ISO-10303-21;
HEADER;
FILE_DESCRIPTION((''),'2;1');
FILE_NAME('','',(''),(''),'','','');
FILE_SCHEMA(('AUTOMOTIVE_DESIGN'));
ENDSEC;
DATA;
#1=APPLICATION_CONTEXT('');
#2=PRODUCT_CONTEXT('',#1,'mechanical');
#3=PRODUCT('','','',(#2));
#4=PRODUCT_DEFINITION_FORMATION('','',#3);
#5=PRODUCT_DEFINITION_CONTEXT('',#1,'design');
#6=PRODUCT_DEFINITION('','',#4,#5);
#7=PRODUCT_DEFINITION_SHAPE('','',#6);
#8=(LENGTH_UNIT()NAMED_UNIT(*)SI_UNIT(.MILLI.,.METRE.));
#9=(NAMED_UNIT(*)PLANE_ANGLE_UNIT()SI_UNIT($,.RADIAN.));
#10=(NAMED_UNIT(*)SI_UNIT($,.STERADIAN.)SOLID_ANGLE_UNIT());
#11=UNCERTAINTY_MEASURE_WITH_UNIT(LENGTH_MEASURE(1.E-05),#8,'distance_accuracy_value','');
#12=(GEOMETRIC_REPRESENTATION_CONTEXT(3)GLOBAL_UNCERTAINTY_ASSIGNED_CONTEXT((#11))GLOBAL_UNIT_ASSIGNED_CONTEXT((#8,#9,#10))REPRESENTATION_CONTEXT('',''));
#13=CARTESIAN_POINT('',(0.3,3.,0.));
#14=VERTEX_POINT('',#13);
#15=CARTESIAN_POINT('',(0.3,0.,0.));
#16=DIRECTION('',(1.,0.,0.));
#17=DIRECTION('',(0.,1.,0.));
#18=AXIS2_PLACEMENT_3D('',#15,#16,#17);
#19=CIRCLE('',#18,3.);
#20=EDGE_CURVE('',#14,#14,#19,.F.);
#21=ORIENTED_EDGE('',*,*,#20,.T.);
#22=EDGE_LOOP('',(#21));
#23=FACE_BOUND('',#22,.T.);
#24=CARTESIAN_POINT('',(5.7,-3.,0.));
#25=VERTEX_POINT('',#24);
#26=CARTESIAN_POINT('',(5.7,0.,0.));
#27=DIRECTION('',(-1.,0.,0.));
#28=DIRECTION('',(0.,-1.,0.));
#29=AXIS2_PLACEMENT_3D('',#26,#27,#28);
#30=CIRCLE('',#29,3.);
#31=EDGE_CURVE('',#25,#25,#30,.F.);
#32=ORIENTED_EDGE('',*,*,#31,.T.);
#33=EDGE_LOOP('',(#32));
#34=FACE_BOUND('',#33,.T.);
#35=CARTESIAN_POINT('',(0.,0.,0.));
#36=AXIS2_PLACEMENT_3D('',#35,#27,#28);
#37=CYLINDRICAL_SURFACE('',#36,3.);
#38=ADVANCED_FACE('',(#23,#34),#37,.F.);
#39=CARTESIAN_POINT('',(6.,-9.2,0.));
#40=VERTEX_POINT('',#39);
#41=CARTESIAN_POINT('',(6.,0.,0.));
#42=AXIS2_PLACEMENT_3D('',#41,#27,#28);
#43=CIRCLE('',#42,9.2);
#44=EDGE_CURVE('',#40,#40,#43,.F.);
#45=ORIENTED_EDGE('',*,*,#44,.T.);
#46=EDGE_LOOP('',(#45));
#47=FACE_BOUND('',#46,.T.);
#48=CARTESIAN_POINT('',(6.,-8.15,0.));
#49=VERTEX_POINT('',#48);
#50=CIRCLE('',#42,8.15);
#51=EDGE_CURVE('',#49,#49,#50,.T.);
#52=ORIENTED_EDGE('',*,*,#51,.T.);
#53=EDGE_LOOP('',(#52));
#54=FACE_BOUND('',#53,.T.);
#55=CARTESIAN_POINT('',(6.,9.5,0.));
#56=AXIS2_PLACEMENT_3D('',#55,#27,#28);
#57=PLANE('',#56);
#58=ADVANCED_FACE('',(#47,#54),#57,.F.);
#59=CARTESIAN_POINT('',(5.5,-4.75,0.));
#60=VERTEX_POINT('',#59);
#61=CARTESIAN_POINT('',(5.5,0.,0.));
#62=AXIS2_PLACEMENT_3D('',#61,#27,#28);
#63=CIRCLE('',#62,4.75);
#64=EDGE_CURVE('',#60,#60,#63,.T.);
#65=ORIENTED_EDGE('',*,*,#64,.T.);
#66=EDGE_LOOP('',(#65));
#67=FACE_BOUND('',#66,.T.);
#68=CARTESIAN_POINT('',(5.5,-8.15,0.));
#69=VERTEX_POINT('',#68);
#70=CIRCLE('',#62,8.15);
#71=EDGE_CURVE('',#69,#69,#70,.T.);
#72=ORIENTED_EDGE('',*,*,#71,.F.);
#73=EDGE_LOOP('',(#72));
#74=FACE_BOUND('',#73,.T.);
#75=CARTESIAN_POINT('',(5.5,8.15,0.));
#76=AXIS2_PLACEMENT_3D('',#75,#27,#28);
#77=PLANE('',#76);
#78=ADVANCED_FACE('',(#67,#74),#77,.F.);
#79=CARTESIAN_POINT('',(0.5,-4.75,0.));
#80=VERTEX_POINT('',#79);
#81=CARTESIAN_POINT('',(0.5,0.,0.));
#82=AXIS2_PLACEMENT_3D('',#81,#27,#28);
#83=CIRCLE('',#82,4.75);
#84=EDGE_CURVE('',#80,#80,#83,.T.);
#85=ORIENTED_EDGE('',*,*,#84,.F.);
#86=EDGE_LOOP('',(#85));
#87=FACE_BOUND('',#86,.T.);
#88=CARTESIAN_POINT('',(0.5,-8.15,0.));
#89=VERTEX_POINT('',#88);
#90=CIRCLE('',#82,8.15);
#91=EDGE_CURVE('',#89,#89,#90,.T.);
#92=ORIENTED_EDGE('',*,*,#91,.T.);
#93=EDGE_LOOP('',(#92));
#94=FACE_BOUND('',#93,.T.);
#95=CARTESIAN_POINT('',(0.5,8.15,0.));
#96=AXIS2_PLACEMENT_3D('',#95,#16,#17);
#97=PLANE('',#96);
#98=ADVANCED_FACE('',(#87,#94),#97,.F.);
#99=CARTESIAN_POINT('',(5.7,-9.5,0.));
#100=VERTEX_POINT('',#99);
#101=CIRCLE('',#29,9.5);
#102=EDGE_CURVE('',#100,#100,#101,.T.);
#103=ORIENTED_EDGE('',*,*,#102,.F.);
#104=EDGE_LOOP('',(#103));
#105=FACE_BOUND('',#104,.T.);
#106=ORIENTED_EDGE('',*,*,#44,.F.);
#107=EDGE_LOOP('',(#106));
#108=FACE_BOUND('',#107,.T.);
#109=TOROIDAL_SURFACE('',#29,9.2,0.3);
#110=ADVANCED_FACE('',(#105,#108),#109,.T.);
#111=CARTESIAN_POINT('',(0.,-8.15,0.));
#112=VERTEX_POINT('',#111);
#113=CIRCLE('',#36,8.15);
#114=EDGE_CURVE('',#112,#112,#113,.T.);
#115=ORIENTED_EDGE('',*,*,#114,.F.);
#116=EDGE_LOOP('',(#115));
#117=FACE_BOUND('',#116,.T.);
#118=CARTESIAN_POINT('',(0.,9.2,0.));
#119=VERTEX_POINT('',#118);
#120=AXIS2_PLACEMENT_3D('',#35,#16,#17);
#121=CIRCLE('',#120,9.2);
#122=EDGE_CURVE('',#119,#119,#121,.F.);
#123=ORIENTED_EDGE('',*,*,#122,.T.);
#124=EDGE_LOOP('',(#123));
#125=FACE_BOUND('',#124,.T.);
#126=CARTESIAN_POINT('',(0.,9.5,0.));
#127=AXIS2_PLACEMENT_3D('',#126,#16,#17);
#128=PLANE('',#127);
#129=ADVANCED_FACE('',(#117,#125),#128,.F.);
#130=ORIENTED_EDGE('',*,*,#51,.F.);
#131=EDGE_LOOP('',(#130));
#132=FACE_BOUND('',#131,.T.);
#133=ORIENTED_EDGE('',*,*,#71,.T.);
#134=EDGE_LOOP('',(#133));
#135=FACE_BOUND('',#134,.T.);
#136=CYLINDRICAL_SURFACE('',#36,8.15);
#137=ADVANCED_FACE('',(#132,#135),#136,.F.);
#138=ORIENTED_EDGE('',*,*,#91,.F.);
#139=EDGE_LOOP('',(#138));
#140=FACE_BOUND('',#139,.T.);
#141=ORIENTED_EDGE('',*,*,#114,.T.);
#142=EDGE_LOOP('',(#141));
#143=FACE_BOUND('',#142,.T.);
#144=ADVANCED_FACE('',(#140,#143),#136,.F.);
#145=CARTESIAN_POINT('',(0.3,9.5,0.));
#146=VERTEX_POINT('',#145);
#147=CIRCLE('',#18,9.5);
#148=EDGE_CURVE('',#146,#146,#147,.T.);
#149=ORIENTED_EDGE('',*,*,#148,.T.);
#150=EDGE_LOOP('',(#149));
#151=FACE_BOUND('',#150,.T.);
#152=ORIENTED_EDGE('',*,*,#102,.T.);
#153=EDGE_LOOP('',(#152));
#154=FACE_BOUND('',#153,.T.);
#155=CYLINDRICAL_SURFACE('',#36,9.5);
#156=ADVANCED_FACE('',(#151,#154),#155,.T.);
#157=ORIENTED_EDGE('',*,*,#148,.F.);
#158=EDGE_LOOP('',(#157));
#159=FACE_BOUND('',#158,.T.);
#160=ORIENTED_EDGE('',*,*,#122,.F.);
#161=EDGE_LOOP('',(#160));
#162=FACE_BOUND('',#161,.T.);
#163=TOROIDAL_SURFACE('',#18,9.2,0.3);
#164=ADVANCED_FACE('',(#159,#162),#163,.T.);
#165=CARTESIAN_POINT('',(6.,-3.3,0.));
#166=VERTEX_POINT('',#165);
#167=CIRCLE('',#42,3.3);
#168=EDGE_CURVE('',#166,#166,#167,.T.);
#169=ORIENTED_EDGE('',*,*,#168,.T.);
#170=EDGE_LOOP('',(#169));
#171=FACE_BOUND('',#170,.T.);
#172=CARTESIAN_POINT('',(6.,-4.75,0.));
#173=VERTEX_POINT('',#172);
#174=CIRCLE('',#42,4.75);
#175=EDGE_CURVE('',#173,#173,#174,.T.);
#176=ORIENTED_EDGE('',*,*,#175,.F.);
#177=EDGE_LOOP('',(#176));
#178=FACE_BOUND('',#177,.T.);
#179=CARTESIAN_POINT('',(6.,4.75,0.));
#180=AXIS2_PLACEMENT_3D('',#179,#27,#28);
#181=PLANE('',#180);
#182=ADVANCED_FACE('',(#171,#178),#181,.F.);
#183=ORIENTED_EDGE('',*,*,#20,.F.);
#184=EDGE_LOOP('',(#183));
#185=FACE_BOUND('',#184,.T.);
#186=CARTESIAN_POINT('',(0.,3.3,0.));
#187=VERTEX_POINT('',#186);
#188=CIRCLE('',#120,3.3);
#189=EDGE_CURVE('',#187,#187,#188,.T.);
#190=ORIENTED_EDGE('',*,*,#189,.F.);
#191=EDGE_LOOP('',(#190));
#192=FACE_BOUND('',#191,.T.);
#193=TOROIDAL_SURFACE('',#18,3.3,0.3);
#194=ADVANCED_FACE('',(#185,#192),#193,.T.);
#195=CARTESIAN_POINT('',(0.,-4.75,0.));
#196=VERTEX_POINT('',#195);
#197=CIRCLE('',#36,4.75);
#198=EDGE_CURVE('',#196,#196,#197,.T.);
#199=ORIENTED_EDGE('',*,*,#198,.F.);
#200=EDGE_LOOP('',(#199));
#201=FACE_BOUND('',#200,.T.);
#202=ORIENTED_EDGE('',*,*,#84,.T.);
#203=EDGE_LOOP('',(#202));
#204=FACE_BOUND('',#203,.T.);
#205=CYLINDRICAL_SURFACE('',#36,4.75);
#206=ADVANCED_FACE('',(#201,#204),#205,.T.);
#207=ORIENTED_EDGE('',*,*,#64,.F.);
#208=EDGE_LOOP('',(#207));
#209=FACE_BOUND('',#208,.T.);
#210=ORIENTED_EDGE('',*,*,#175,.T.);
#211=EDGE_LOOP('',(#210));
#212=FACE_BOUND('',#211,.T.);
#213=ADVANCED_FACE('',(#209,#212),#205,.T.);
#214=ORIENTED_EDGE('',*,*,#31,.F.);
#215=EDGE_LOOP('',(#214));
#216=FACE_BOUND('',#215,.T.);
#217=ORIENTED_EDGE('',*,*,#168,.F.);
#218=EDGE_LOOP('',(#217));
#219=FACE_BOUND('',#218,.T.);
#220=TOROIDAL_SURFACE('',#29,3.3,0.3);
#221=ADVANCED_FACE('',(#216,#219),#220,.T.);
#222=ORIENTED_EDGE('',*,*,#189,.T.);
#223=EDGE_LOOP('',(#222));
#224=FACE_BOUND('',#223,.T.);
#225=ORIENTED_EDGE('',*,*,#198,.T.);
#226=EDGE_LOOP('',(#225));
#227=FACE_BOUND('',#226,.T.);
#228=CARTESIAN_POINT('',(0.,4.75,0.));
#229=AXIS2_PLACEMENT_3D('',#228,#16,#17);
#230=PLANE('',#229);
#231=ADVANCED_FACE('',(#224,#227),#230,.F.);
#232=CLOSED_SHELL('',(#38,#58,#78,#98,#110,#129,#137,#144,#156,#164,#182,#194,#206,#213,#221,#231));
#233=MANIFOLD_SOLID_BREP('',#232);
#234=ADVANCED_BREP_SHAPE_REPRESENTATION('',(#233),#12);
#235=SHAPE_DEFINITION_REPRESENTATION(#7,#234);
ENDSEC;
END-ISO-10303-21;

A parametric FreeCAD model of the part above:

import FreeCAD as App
import Part
import Sketcher
from FreeCAD import Vector
Q = App.Units.Quantity


def edges_at(feature, points):
    """Names of the edges that pass closest to the given points."""
    edges = feature.Shape.Edges
    near = lambda p: min(range(len(edges)), key=lambda i: edges[i].distToShape(Part.Vertex(*p))[0])
    return sorted({f"Edge{near(p) + 1}" for p in points})

doc = App.newDocument("Part")
body = doc.addObject("PartDesign::Body", "Body")

# Sketch on XY plane
sketch1 = body.newObject("Sketcher::SketchObject", "Sketch")
sketch1.AttachmentSupport = (doc.getObject("XY_Plane"), [""])
sketch1.MapMode = "FlatFace"
sketch1.addGeometry([
    Part.LineSegment(Vector(0, 3, 0), Vector(6, 3, 0)),  # 0
    Part.LineSegment(Vector(6, 3, 0), Vector(6, 4.75, 0)),  # 1
    Part.LineSegment(Vector(6, 4.75, 0), Vector(5.5, 4.75, 0)),  # 2
    Part.LineSegment(Vector(5.5, 4.75, 0), Vector(5.5, 8.15, 0)),  # 3
    Part.LineSegment(Vector(5.5, 8.15, 0), Vector(6, 8.15, 0)),  # 4
    Part.LineSegment(Vector(6, 8.15, 0), Vector(6, 9.5, 0)),  # 5
    Part.LineSegment(Vector(6, 9.5, 0), Vector(0, 9.5, 0)),  # 6
    Part.LineSegment(Vector(0, 9.5, 0), Vector(0, 8.15, 0)),  # 7
    Part.LineSegment(Vector(0, 8.15, 0), Vector(0.5, 8.15, 0)),  # 8
    Part.LineSegment(Vector(0.5, 8.15, 0), Vector(0.5, 4.75, 0)),  # 9
    Part.LineSegment(Vector(0.5, 4.75, 0), Vector(0, 4.75, 0)),  # 10
    Part.LineSegment(Vector(0, 4.75, 0), Vector(0, 3, 0)),  # 11
], False)
sketch1.addConstraint([
    Sketcher.Constraint("Coincident", 0, 2, 1, 1),
    Sketcher.Constraint("Coincident", 1, 2, 2, 1),
    Sketcher.Constraint("Coincident", 2, 2, 3, 1),
    Sketcher.Constraint("Coincident", 3, 2, 4, 1),
    Sketcher.Constraint("Coincident", 4, 2, 5, 1),
    Sketcher.Constraint("Coincident", 5, 2, 6, 1),
    Sketcher.Constraint("Coincident", 6, 2, 7, 1),
    Sketcher.Constraint("Coincident", 7, 2, 8, 1),
    Sketcher.Constraint("Coincident", 8, 2, 9, 1),
    Sketcher.Constraint("Coincident", 9, 2, 10, 1),
    Sketcher.Constraint("Coincident", 10, 2, 11, 1),
    Sketcher.Constraint("Coincident", 11, 2, 0, 1),
    Sketcher.Constraint("Horizontal", 0),
    Sketcher.Constraint("Vertical", 1),
    Sketcher.Constraint("Horizontal", 2),
    Sketcher.Constraint("Vertical", 3),
    Sketcher.Constraint("Horizontal", 4),
    Sketcher.Constraint("Vertical", 5),
    Sketcher.Constraint("Horizontal", 6),
    Sketcher.Constraint("Vertical", 7),
    Sketcher.Constraint("Horizontal", 8),
    Sketcher.Constraint("Vertical", 9),
    Sketcher.Constraint("Horizontal", 10),
    Sketcher.Constraint("Vertical", 11),
    Sketcher.Constraint("PointOnObject", 6, 2, -2),
    Sketcher.Constraint("PointOnObject", 10, 2, -2),
    Sketcher.Constraint("Horizontal", 4, 2, 7, 2),
    Sketcher.Constraint("Horizontal", 2, 2, 9, 2),
    Sketcher.Constraint("Vertical", 1, 2, 4, 2),
    Sketcher.Constraint("Equal", 4, 8),
    Sketcher.Constraint("DistanceX", 0, 1, 0, 2, Q("6 mm")),
    Sketcher.Constraint("DistanceX", 2, 2, 2, 1, Q("0.5 mm")),
    Sketcher.Constraint("DistanceY", 3, 1, 3, 2, Q("3.4 mm")),
    Sketcher.Constraint("DistanceY", -1, 1, 0, 2, Q("3 mm")),
    Sketcher.Constraint("DistanceY", 1, 1, 1, 2, Q("1.75 mm")),
    Sketcher.Constraint("DistanceY", 5, 1, 5, 2, Q("1.35 mm")),
])
revolution = body.newObject("PartDesign::Revolution", "Revolution")
revolution.Profile = sketch1
revolution.ReferenceAxis = (sketch1, ["H_Axis"])
revolution.Angle = 360
doc.recompute()

fillet = body.newObject("PartDesign::Fillet", "Fillet")
fillet.Base = (revolution, edges_at(revolution, [(0, -9.5, 0), (6, -9.5, 0)]))
fillet.Radius = 0.3
doc.recompute()

fillet2 = body.newObject("PartDesign::Fillet", "Fillet001")
fillet2.Base = (fillet, edges_at(fillet, [(6, -3, 0), (0, -3, 0)]))
fillet2.Radius = 0.3

doc.recompute()
